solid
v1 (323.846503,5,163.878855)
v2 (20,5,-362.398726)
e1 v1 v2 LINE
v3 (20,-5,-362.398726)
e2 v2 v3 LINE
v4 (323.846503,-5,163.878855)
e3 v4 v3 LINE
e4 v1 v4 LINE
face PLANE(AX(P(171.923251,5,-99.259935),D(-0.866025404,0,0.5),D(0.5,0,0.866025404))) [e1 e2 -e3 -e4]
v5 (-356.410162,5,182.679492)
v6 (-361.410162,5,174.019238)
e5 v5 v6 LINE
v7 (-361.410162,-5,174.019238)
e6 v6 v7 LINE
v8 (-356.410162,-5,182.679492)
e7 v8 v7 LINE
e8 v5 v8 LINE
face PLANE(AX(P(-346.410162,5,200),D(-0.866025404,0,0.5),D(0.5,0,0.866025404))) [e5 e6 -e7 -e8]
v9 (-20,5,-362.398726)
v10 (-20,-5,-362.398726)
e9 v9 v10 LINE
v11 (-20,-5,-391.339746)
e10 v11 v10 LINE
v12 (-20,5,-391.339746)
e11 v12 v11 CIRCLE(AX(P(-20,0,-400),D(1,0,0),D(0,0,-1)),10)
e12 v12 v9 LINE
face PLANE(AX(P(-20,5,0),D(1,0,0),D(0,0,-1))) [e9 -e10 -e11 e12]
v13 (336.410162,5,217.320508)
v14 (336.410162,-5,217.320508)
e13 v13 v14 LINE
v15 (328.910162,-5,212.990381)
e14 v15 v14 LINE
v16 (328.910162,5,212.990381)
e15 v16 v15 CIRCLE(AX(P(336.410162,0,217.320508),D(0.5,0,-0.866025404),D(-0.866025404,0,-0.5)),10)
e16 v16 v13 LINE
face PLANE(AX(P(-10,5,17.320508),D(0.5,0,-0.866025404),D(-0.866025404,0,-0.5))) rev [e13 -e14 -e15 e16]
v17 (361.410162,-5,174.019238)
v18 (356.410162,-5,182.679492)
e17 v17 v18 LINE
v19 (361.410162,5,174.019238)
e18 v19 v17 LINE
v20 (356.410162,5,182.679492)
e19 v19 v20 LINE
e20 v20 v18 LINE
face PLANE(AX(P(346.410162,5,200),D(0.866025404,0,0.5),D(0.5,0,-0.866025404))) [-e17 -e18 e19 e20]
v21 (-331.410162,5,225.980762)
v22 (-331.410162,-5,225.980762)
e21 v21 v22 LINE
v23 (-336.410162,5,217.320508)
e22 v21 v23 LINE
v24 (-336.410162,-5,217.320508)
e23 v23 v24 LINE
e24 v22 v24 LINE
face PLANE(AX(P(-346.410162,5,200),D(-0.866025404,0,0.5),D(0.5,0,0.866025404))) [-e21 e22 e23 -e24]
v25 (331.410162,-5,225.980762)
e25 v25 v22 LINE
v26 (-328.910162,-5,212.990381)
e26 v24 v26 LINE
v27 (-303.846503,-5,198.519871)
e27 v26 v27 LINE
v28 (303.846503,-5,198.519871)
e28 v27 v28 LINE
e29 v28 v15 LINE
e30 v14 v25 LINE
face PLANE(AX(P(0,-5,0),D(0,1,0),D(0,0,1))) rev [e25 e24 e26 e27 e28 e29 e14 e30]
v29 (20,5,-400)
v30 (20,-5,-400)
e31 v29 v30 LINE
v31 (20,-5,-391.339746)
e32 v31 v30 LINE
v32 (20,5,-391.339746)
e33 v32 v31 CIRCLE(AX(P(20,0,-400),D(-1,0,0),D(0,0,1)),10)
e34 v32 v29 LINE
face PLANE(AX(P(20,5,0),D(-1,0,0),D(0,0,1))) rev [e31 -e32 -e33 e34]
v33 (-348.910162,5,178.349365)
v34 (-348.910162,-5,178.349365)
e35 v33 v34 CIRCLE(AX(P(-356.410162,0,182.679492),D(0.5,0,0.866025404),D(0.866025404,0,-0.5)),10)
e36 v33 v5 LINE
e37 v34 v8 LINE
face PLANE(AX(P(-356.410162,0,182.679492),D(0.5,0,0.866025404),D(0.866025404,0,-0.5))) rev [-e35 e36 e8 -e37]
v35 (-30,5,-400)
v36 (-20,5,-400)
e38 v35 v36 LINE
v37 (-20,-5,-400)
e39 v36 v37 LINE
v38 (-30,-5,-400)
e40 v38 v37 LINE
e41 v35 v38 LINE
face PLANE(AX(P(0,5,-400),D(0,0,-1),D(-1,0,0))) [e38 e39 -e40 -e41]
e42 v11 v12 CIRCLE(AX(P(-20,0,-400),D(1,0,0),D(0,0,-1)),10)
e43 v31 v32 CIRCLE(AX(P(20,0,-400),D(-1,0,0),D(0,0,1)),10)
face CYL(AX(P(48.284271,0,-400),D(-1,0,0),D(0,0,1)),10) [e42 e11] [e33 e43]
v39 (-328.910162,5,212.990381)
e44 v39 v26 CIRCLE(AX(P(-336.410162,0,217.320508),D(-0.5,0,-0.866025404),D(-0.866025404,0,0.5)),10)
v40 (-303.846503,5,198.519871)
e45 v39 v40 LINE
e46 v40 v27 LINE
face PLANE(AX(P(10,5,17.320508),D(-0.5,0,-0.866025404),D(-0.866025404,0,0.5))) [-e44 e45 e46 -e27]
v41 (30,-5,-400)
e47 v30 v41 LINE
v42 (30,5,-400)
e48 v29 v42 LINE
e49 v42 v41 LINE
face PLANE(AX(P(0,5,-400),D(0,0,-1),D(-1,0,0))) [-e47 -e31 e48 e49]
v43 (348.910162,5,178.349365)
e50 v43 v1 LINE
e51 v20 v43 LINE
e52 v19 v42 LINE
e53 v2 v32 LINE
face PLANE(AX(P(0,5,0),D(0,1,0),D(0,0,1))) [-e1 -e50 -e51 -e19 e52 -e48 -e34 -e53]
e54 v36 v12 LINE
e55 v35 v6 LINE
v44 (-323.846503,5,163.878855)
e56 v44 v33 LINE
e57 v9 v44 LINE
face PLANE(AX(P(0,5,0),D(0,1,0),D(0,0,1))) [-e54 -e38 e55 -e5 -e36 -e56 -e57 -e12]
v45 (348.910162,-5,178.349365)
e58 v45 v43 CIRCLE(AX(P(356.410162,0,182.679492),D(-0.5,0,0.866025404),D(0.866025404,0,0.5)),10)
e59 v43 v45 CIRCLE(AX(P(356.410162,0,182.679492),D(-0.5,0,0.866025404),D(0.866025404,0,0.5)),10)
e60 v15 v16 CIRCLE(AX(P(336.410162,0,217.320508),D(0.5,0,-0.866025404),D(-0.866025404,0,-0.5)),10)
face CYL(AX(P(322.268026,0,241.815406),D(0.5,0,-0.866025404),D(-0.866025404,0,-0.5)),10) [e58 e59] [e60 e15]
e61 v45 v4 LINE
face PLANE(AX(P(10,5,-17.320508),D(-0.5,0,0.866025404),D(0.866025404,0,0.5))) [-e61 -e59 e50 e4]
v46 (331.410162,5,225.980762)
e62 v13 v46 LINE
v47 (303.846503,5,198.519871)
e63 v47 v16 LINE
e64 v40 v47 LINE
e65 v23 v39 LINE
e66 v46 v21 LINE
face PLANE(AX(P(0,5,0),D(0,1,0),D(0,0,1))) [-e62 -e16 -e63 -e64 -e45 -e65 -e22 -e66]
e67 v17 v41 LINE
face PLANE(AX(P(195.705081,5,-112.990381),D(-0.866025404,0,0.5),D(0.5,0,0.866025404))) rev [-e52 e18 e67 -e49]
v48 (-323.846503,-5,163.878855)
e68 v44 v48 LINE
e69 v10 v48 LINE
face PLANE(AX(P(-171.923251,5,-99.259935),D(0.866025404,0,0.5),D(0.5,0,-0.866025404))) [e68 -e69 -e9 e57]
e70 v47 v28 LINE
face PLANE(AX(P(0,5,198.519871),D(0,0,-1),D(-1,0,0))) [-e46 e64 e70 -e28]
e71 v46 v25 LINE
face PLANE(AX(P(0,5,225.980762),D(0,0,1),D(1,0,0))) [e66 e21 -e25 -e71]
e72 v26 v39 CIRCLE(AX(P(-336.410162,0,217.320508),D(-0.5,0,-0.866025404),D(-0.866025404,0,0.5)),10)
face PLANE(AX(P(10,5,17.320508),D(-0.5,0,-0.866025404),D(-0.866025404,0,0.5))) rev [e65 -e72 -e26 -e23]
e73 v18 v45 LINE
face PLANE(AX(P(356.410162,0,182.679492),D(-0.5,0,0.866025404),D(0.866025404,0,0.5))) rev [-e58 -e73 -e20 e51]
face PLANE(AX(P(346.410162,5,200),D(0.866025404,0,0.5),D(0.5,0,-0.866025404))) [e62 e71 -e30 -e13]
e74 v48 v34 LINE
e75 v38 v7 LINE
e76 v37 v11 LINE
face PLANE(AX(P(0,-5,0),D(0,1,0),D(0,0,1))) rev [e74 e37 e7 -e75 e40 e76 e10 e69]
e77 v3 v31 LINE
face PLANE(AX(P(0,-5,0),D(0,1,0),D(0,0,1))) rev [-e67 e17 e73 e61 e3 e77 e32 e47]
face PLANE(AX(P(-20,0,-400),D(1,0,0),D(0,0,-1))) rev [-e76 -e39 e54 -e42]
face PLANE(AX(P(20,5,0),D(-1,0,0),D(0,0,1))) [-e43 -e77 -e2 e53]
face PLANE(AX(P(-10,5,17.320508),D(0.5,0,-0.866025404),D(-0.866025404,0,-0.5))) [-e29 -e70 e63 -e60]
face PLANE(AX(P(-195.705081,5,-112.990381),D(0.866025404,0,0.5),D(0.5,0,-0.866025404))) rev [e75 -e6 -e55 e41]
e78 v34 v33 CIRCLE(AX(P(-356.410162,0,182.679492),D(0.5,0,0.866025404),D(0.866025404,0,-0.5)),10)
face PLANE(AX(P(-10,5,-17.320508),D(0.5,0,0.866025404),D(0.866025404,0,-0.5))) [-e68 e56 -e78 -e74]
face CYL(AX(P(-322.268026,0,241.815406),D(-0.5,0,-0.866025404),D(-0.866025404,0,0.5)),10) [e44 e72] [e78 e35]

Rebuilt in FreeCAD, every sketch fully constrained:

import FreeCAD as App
import Part
import Sketcher
Q = App.Units.Quantity


def add_polygon(sketch, points):
    """Adds a closed chain of lines whose ends are joined by coincident constraints."""
    first, n = sketch.GeometryCount, len(points)
    for a, b in zip(points, points[1:] + points[:1]):
        sketch.addGeometry(Part.LineSegment(App.Vector(*a, 0), App.Vector(*b, 0)), False)
    for i in range(n):
        sketch.addConstraint(Sketcher.Constraint("Coincident", first + i, 2, first + (i + 1) % n, 1))

doc = App.newDocument("Part")
body = doc.addObject("PartDesign::Body", "Body")

sketch1 = body.newObject("Sketcher::SketchObject", "Sketch")
sketch1.AttachmentSupport = (doc.getObject("XZ_Plane"), [""])
sketch1.MapMode = "FlatFace"
add_polygon(sketch1, [(-304, 199), (-336, 217), (-331, 226), (331, 226), (336, 217), (304, 199)])
sketch1.addConstraint([
    Sketcher.Constraint("Horizontal", 2),
    Sketcher.Constraint("Horizontal", 5),
    Sketcher.Constraint("Symmetric", 0, 2, 3, 2, -2),
    Sketcher.Constraint("Perpendicular", 0, 1),
    Sketcher.Constraint("Perpendicular", 3, 4),
    Sketcher.Constraint("Equal", 1, 3),
    Sketcher.Constraint("Angle", 0, Q("150 deg")),
    Sketcher.Constraint("Distance", 1, 10.0),
    Sketcher.Constraint("DistanceX", 2, 1, 2, 2, 662.820323),
    Sketcher.Constraint("DistanceX", 5, 2, 5, 1, 607.693005),
    Sketcher.Constraint("DistanceY", -1, 1, 0, 2, 217.320508),
])
pad1 = body.newObject("PartDesign::Pad", "Pad")
pad1.Profile = sketch1
pad1.Length = 10
pad1.Midplane = True
body2 = doc.addObject("PartDesign::Body", "Body001")

sketch2 = body2.newObject("Sketcher::SketchObject", "Sketch001")
sketch2.AttachmentSupport = (doc.getObject("XZ_Plane001"), [""])
sketch2.MapMode = "FlatFace"
add_polygon(sketch2, [(-20, -400), (-30, -400), (-361, 174), (-356, 183), (-324, 164), (-20, -362)])
sketch2.addConstraint([
    Sketcher.Constraint("Horizontal", 0),
    Sketcher.Constraint("Vertical", 5),
    Sketcher.Constraint("Perpendicular", 2, 3),
    Sketcher.Constraint("Parallel", 1, 4),
    Sketcher.Constraint("DistanceX", 0, 2, 0, 1, 10.0),
    Sketcher.Constraint("Angle", 1, Q("120 deg")),
    Sketcher.Constraint("Angle", 2, Q("60 deg")),
    Sketcher.Constraint("Distance", 2, 10.0),
    Sketcher.Constraint("DistanceX", 0, 2, -1, 1, 30.0),
    Sketcher.Constraint("DistanceY", 0, 2, -1, 1, 400.0),
    Sketcher.Constraint("DistanceY", 5, 2, 5, 1, 37.601274),
    Sketcher.Constraint("DistanceX", 1, 2, -1, 1, 361.410162),
])
pad2 = body2.newObject("PartDesign::Pad", "Pad001")
pad2.Profile = sketch2
pad2.Length = 10
pad2.Midplane = True
body3 = doc.addObject("PartDesign::Body", "Body002")

sketch3 = body3.newObject("Sketcher::SketchObject", "Sketch002")
sketch3.AttachmentSupport = (doc.getObject("XZ_Plane002"), [""])
sketch3.MapMode = "FlatFace"
add_polygon(sketch3, [(30, -400), (20, -400), (20, -362), (324, 164), (356, 183), (361, 174)])
sketch3.addConstraint([
    Sketcher.Constraint("Horizontal", 0),
    Sketcher.Constraint("Vertical", 1),
    Sketcher.Constraint("Perpendicular", 3, 4),
    Sketcher.Constraint("Parallel", 2, 5),
    Sketcher.Constraint("DistanceX", 0, 2, 0, 1, 10.0),
    Sketcher.Constraint("Angle", 2, Q("60 deg")),
    Sketcher.Constraint("Angle", 3, Q("30 deg")),
    Sketcher.Constraint("Distance", 4, 10.0),
    Sketcher.Constraint("DistanceX", -1, 1, 0, 2, 20.0),
    Sketcher.Constraint("DistanceY", 0, 2, -1, 1, 400.0),
    Sketcher.Constraint("DistanceY", 1, 1, 1, 2, 37.601274),
    Sketcher.Constraint("DistanceX", -1, 1, 3, 2, 356.410162),
])
pad3 = body3.newObject("PartDesign::Pad", "Pad002")
pad3.Profile = sketch3
pad3.Length = 10
pad3.Midplane = True
body2.AllowCompound = True
doc.recompute()

boolean = body2.newObject("PartDesign::Boolean", "Boolean")
boolean.Type = "Fuse"
boolean.addObjects([body3])

sketch4 = body2.newObject("Sketcher::SketchObject", "Sketch003")
sketch4.AttachmentSupport = (doc.getObject("YZ_Plane001"), [""])
sketch4.MapMode = "FlatFace"
sketch4.AttachmentOffset = App.Placement(App.Vector(0, 0, -20), App.Rotation())
sketch4.addGeometry(Part.Circle(App.Vector(0, -400, 0), App.Vector(0, 0, 1), 10), False)
sketch4.addConstraint([
    Sketcher.Constraint("PointOnObject", 0, 3, -2),
    Sketcher.Constraint("Diameter", 0, 20.0),
    Sketcher.Constraint("DistanceY", 0, 3, -1, 1, 400.0),
])
pad4 = body2.newObject("PartDesign::Pad", "Pad003")
pad4.Profile = sketch4
pad4.Length = 40
body.AllowCompound = True
doc.recompute()

boolean2 = body.newObject("PartDesign::Boolean", "Boolean001")
boolean2.Type = "Fuse"
boolean2.addObjects([body2])

sketch5 = body.newObject("Sketcher::SketchObject", "Sketch004")
sketch5.Placement = App.Placement(App.Vector(-10, 0, -17.320508), App.Rotation(App.Vector(0.866025404, 0, -0.5), App.Vector(0, 1, 0), App.Vector(0.5, 0, 0.866025404), "ZXY"))
sketch5.addGeometry(Part.Circle(App.Vector(-400, 0, 0), App.Vector(0, 0, 1), 10), False)
sketch5.addConstraint([
    Sketcher.Constraint("PointOnObject", 0, 3, -1),
    Sketcher.Constraint("Diameter", 0, 20.0),
    Sketcher.Constraint("DistanceX", 0, 3, -1, 1, 400.0),
])
pad5 = body.newObject("PartDesign::Pad", "Pad004")
pad5.Profile = sketch5
pad5.Length = 40

sketch6 = body.newObject("Sketcher::SketchObject", "Sketch005")
sketch6.Placement = App.Placement(App.Vector(10, 0, -17.320508), App.Rotation(App.Vector(0.866025404, 0, 0.5), App.Vector(0, 1, 0), App.Vector(-0.5, 0, 0.866025404), "ZXY"))
sketch6.addGeometry(Part.Circle(App.Vector(400, 0, 0), App.Vector(0, 0, 1), 10), False)
sketch6.addConstraint([
    Sketcher.Constraint("PointOnObject", 0, 3, -1),
    Sketcher.Constraint("Diameter", 0, 20.0),
    Sketcher.Constraint("DistanceX", -1, 1, 0, 3, 400.0),
])
pad6 = body.newObject("PartDesign::Pad", "Pad005")
pad6.Profile = sketch6
pad6.Length = 40

doc.recompute()
